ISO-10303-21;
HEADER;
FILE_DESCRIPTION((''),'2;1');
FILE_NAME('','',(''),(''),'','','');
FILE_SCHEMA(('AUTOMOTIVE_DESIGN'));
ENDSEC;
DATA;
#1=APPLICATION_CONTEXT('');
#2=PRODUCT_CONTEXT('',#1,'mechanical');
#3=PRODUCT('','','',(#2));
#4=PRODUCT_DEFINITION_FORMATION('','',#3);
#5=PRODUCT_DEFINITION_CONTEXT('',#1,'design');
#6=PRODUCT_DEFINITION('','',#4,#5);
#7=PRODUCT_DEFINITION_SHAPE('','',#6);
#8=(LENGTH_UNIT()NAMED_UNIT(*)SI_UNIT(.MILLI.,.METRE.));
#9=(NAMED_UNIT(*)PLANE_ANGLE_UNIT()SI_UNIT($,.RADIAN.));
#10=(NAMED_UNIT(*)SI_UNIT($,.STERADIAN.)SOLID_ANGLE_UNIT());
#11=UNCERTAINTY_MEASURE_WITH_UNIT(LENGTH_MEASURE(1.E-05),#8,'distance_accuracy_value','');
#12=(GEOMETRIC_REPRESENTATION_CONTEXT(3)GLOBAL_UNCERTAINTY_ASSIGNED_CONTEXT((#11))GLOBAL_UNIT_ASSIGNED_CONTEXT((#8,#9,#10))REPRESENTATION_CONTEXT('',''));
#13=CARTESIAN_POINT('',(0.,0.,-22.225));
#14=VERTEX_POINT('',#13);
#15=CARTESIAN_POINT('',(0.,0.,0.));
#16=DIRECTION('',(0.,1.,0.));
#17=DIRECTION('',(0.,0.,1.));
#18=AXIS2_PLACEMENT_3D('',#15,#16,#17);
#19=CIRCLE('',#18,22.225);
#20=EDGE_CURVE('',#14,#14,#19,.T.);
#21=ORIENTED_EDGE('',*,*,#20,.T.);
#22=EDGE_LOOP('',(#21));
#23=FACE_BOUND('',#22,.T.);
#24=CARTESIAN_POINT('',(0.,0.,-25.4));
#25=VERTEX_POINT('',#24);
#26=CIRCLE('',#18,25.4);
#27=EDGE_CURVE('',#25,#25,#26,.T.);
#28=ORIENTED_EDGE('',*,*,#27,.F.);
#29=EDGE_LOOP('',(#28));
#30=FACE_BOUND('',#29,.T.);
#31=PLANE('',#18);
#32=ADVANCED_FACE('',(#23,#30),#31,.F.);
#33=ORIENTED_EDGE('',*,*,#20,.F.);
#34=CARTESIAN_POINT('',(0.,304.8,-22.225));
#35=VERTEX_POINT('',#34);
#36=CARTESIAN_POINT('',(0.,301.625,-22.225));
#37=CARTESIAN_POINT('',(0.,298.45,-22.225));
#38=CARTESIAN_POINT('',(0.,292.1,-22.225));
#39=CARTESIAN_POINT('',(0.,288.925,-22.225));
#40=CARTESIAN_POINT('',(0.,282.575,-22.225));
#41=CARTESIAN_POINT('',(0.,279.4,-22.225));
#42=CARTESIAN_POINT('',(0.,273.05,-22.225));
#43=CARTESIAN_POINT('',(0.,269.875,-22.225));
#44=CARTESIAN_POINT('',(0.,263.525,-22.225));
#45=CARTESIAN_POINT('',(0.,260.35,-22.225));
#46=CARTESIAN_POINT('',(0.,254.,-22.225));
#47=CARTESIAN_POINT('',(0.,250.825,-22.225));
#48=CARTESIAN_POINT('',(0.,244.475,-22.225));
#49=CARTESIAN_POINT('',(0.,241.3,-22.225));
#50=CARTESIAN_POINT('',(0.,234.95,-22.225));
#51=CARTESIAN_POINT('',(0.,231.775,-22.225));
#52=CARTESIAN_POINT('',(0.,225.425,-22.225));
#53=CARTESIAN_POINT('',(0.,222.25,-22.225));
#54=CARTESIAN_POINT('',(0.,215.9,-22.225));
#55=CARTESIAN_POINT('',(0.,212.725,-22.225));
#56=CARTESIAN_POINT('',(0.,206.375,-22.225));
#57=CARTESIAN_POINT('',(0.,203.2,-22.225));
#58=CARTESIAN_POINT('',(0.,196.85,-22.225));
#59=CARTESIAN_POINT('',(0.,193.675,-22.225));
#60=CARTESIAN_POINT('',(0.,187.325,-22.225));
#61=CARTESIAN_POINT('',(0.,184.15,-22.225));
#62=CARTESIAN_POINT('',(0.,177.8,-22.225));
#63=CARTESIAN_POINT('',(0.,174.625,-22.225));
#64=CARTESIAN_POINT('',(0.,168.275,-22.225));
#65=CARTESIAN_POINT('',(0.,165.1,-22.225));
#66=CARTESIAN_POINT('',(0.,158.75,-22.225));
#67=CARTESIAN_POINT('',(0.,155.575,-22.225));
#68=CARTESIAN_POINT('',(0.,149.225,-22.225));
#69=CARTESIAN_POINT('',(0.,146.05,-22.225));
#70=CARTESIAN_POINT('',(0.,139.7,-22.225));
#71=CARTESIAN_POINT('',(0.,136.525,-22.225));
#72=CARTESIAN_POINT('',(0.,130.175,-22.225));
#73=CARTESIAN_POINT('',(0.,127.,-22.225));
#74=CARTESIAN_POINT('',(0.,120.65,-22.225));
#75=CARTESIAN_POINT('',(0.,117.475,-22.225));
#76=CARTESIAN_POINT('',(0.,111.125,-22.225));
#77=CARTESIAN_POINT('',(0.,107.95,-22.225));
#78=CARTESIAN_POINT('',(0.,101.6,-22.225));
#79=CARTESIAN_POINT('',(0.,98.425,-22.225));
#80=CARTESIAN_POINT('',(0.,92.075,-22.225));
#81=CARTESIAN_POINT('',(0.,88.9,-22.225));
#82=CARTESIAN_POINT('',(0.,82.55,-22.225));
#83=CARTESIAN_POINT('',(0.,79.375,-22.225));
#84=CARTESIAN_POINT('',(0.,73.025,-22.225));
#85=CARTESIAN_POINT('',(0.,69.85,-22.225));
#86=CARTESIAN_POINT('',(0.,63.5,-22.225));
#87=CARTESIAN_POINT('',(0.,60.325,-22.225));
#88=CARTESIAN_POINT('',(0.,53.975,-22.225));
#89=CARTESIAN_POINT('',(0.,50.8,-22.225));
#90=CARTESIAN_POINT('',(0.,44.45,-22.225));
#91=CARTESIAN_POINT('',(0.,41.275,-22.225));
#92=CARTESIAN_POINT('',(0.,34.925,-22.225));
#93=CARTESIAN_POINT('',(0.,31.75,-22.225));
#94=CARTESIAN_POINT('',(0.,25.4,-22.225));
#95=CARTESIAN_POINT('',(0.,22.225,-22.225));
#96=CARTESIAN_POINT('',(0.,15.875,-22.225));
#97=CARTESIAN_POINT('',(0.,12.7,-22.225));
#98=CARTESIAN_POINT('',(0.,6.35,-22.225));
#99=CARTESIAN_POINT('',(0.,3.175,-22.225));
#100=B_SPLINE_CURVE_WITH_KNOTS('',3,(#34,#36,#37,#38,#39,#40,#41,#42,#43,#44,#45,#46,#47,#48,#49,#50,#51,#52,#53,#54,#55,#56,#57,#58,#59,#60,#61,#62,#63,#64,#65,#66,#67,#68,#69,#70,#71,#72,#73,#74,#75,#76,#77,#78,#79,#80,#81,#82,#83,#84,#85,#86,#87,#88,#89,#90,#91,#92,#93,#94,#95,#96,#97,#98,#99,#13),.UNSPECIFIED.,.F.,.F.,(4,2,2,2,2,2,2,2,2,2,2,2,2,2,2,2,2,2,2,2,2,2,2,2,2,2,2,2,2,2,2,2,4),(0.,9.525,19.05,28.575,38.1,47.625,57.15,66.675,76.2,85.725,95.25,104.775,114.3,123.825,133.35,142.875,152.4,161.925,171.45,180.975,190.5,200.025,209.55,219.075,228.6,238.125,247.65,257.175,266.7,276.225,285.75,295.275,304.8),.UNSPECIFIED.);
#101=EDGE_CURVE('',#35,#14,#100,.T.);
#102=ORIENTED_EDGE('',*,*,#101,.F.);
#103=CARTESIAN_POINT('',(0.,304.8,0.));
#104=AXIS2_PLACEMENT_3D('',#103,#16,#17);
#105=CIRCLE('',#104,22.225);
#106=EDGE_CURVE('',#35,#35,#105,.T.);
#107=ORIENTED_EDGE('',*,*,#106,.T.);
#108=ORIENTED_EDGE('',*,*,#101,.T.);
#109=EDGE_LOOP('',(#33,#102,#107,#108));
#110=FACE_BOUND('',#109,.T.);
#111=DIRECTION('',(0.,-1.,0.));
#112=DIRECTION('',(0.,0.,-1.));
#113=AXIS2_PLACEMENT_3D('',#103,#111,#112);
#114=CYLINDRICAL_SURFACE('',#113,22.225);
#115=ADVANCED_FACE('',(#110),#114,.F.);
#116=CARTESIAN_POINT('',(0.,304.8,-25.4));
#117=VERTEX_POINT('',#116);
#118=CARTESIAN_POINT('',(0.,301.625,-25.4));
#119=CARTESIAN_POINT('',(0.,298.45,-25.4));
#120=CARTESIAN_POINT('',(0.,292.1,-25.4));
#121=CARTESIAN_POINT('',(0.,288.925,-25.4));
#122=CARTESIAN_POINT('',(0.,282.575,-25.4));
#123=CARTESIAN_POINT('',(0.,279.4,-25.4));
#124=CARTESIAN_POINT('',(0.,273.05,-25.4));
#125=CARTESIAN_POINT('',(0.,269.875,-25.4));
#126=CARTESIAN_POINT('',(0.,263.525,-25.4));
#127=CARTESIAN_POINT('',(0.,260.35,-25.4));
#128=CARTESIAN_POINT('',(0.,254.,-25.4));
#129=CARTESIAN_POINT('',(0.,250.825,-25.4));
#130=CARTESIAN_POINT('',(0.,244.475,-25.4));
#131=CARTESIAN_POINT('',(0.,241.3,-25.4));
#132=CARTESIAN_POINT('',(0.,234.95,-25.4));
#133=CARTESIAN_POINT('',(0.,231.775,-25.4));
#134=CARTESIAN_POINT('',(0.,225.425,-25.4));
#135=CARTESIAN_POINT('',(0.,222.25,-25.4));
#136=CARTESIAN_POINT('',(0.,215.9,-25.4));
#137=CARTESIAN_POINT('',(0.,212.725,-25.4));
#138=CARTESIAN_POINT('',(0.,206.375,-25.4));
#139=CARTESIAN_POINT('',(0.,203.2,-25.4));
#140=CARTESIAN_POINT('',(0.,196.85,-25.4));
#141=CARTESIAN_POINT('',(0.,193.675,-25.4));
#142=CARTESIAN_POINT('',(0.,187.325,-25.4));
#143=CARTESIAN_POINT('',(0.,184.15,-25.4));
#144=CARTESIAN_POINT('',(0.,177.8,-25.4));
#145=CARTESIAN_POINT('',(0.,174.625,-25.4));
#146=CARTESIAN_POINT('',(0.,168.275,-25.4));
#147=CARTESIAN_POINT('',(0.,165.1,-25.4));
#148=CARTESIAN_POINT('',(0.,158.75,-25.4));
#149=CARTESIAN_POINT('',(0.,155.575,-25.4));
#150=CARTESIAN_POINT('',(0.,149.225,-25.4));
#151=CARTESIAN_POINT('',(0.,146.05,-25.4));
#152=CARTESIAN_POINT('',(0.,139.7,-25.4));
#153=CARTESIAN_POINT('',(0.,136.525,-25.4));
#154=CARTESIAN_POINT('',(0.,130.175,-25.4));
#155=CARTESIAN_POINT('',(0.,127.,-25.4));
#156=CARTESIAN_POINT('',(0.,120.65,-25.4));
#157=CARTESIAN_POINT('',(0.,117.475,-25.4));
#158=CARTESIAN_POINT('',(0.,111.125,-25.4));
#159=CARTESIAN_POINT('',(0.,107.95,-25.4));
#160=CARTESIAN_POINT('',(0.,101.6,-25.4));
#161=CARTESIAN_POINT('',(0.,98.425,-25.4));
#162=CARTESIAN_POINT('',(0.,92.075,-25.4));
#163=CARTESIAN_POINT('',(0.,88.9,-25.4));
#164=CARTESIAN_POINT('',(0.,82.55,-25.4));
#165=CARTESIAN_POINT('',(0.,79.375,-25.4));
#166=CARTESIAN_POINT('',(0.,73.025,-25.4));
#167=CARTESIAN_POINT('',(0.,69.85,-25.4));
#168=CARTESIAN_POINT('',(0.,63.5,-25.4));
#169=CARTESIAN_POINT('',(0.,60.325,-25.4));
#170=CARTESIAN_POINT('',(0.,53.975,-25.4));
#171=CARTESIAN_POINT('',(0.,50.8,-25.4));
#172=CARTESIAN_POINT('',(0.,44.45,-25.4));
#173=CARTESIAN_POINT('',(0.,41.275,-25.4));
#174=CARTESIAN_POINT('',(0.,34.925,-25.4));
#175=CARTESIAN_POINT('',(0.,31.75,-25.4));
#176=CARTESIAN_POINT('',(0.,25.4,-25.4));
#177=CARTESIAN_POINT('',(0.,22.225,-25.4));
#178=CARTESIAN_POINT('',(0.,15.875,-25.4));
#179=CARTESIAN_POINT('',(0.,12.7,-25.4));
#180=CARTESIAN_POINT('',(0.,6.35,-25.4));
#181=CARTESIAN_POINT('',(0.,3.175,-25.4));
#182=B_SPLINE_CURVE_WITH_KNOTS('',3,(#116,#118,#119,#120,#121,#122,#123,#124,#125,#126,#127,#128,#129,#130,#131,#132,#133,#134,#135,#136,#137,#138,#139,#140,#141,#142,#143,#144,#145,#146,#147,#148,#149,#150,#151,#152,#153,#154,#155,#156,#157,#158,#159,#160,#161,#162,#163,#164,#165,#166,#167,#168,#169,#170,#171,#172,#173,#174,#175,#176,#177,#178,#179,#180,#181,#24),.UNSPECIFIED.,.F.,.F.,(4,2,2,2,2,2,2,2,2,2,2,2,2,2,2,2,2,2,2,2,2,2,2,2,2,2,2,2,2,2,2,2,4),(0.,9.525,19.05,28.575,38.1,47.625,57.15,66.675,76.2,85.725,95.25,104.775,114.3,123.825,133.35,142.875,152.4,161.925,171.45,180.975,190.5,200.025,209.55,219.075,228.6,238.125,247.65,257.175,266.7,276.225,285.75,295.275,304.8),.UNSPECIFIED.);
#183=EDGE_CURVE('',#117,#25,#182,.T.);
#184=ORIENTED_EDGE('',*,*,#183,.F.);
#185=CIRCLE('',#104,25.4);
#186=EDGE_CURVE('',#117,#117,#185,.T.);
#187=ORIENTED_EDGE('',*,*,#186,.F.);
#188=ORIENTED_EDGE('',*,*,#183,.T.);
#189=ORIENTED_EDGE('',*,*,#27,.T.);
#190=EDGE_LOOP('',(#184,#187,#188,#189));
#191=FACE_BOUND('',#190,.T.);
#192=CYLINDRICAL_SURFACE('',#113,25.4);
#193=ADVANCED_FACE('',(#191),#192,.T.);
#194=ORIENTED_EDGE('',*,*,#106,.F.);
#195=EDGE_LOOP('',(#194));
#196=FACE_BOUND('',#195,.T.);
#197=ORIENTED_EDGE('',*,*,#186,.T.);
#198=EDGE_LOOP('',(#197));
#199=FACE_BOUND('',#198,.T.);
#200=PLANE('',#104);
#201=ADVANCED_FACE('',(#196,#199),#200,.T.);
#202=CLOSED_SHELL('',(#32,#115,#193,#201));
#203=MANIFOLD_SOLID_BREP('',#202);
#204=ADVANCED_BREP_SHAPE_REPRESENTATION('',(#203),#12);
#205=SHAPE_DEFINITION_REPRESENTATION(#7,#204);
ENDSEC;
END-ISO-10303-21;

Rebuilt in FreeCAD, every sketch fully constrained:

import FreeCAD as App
import Part
import Sketcher

V = App.Vector
Q = App.Units.Quantity

doc = App.newDocument("Part")
body = doc.addObject("PartDesign::Body", "Body")

# Sketch on XZ plane
sketch1 = body.newObject("Sketcher::SketchObject", "Sketch")
sketch1.AttachmentSupport = (doc.getObject("XZ_Plane"), [""])
sketch1.MapMode = "FlatFace"
sketch1.addGeometry([
    Part.Circle(V(0, 0, 0), V(0, 0, 1), 25),
    Part.Circle(V(0, 0, 0), V(0, 0, 1), 22),
], False)
sketch1.addConstraint([
    Sketcher.Constraint("Coincident", 0, 3, -1, 1),
    Sketcher.Constraint("Coincident", 1, 3, -1, 1),
    Sketcher.Constraint("Diameter", 0, Q("2 in")),
    Sketcher.Constraint("Diameter", 1, Q("1.75 in")),
])
pad1 = body.newObject("PartDesign::Pad", "Pad")
pad1.Profile = sketch1
pad1.Length = Q("12 in")
pad1.Reversed = True

doc.recompute()
